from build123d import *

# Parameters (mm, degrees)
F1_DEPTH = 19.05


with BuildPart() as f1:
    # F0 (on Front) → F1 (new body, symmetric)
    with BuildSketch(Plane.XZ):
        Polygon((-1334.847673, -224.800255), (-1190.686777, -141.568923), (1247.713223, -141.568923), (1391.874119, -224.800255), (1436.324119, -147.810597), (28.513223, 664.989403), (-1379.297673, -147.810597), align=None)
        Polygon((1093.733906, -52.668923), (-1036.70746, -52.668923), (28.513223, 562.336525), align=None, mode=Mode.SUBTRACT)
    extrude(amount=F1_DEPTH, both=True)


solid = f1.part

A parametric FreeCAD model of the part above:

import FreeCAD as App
import Part
import Sketcher

V = App.Vector
Q = App.Units.Quantity

doc = App.newDocument("Part")
body = doc.addObject("PartDesign::Body", "Body")

sketch1 = body.newObject("Sketcher::SketchObject", "Sketch")
sketch1.AttachmentSupport = (doc.getObject("XZ_Plane"), [""])
sketch1.MapMode = "FlatFace"
sketch1.addGeometry(Part.LineSegment(V(-1334.847673, -224.800255, 0), V(-1190.686777, -141.568923, 0)), False)
sketch1.addGeometry(Part.LineSegment(V(-1190.686777, -141.568923, 0), V(1247.713223, -141.568923, 0)), False)
sketch1.addGeometry(Part.LineSegment(V(1247.713223, -141.568923, 0), V(1391.874119, -224.800255, 0)), False)
sketch1.addGeometry(Part.LineSegment(V(1391.874119, -224.800255, 0), V(1436.324119, -147.810597, 0)), False)
sketch1.addGeometry(Part.LineSegment(V(1436.324119, -147.810597, 0), V(28.513223, 664.989403, 0)), False)
sketch1.addGeometry(Part.LineSegment(V(28.513223, 664.989403, 0), V(-1379.297673, -147.810597, 0)), False)
sketch1.addGeometry(Part.LineSegment(V(-1379.297673, -147.810597, 0), V(-1334.847673, -224.800255, 0)), False)
sketch1.addGeometry(Part.LineSegment(V(28.513223, 562.336525, 0), V(1093.733906, -52.668923, 0)), False)
sketch1.addGeometry(Part.LineSegment(V(1093.733906, -52.668923, 0), V(-1036.70746, -52.668923, 0)), False)
sketch1.addGeometry(Part.LineSegment(V(-1036.70746, -52.668923, 0), V(28.513223, 562.336525, 0)), False)
sketch1.addConstraint(Sketcher.Constraint("Coincident", 0, 2, 1, 1))
sketch1.addConstraint(Sketcher.Constraint("Coincident", 1, 2, 2, 1))
sketch1.addConstraint(Sketcher.Constraint("Coincident", 2, 2, 3, 1))
sketch1.addConstraint(Sketcher.Constraint("Coincident", 3, 2, 4, 1))
sketch1.addConstraint(Sketcher.Constraint("Coincident", 4, 2, 5, 1))
sketch1.addConstraint(Sketcher.Constraint("Coincident", 5, 2, 6, 1))
sketch1.addConstraint(Sketcher.Constraint("Coincident", 6, 2, 0, 1))
sketch1.addConstraint(Sketcher.Constraint("Coincident", 7, 2, 8, 1))
sketch1.addConstraint(Sketcher.Constraint("Coincident", 8, 2, 9, 1))
sketch1.addConstraint(Sketcher.Constraint("Coincident", 9, 2, 7, 1))
sketch1.addConstraint(Sketcher.Constraint("Horizontal", 1))
sketch1.addConstraint(Sketcher.Constraint("Horizontal", 8))
sketch1.addConstraint(Sketcher.Constraint("Perpendicular", 2, 3))
sketch1.addConstraint(Sketcher.Constraint("Perpendicular", 3, 4))
sketch1.addConstraint(Sketcher.Constraint("Parallel", 0, 5))
sketch1.addConstraint(Sketcher.Constraint("Perpendicular", 5, 6))
sketch1.addConstraint(Sketcher.Constraint("Parallel", 4, 7))
sketch1.addConstraint(Sketcher.Constraint("Perpendicular", 6, 9))
sketch1.addConstraint(Sketcher.Constraint("Horizontal", 3, 2, 5, 2))
sketch1.addConstraint(Sketcher.Constraint("Horizontal", 2, 2, 6, 2))
sketch1.addConstraint(Sketcher.Constraint("Vertical", 4, 2, 9, 2))
sketch1.addConstraint(Sketcher.Constraint("Equal", 0, 2))
sketch1.addConstraint(Sketcher.Constraint("DistanceX", 1, 1, 1, 2, Q("96 in")))
sketch1.addConstraint(Sketcher.Constraint("Distance", 4, Q("64 in")))
sketch1.addConstraint(Sketcher.Constraint("Angle", 0, Q("30 deg")))
sketch1.addConstraint(Sketcher.Constraint("Distance", 3, Q("3.5 in")))
sketch1.addConstraint(Sketcher.Constraint("DistanceY", 1, 2, 7, 2, Q("3.5 in")))
sketch1.addConstraint(Sketcher.Constraint("DistanceX", 8, 2, 8, 1, 2130.441366))
sketch1.addConstraint(Sketcher.Constraint("DistanceX", -1, 1, 2, 2, 1391.874119))
sketch1.addConstraint(Sketcher.Constraint("DistanceY", 0, 2, -1, 1, 141.568923))
pad1 = body.newObject("PartDesign::Pad", "Pad")
pad1.Profile = sketch1
pad1.Length = Q("1.5 in")
pad1.Midplane = True

doc.recompute()
